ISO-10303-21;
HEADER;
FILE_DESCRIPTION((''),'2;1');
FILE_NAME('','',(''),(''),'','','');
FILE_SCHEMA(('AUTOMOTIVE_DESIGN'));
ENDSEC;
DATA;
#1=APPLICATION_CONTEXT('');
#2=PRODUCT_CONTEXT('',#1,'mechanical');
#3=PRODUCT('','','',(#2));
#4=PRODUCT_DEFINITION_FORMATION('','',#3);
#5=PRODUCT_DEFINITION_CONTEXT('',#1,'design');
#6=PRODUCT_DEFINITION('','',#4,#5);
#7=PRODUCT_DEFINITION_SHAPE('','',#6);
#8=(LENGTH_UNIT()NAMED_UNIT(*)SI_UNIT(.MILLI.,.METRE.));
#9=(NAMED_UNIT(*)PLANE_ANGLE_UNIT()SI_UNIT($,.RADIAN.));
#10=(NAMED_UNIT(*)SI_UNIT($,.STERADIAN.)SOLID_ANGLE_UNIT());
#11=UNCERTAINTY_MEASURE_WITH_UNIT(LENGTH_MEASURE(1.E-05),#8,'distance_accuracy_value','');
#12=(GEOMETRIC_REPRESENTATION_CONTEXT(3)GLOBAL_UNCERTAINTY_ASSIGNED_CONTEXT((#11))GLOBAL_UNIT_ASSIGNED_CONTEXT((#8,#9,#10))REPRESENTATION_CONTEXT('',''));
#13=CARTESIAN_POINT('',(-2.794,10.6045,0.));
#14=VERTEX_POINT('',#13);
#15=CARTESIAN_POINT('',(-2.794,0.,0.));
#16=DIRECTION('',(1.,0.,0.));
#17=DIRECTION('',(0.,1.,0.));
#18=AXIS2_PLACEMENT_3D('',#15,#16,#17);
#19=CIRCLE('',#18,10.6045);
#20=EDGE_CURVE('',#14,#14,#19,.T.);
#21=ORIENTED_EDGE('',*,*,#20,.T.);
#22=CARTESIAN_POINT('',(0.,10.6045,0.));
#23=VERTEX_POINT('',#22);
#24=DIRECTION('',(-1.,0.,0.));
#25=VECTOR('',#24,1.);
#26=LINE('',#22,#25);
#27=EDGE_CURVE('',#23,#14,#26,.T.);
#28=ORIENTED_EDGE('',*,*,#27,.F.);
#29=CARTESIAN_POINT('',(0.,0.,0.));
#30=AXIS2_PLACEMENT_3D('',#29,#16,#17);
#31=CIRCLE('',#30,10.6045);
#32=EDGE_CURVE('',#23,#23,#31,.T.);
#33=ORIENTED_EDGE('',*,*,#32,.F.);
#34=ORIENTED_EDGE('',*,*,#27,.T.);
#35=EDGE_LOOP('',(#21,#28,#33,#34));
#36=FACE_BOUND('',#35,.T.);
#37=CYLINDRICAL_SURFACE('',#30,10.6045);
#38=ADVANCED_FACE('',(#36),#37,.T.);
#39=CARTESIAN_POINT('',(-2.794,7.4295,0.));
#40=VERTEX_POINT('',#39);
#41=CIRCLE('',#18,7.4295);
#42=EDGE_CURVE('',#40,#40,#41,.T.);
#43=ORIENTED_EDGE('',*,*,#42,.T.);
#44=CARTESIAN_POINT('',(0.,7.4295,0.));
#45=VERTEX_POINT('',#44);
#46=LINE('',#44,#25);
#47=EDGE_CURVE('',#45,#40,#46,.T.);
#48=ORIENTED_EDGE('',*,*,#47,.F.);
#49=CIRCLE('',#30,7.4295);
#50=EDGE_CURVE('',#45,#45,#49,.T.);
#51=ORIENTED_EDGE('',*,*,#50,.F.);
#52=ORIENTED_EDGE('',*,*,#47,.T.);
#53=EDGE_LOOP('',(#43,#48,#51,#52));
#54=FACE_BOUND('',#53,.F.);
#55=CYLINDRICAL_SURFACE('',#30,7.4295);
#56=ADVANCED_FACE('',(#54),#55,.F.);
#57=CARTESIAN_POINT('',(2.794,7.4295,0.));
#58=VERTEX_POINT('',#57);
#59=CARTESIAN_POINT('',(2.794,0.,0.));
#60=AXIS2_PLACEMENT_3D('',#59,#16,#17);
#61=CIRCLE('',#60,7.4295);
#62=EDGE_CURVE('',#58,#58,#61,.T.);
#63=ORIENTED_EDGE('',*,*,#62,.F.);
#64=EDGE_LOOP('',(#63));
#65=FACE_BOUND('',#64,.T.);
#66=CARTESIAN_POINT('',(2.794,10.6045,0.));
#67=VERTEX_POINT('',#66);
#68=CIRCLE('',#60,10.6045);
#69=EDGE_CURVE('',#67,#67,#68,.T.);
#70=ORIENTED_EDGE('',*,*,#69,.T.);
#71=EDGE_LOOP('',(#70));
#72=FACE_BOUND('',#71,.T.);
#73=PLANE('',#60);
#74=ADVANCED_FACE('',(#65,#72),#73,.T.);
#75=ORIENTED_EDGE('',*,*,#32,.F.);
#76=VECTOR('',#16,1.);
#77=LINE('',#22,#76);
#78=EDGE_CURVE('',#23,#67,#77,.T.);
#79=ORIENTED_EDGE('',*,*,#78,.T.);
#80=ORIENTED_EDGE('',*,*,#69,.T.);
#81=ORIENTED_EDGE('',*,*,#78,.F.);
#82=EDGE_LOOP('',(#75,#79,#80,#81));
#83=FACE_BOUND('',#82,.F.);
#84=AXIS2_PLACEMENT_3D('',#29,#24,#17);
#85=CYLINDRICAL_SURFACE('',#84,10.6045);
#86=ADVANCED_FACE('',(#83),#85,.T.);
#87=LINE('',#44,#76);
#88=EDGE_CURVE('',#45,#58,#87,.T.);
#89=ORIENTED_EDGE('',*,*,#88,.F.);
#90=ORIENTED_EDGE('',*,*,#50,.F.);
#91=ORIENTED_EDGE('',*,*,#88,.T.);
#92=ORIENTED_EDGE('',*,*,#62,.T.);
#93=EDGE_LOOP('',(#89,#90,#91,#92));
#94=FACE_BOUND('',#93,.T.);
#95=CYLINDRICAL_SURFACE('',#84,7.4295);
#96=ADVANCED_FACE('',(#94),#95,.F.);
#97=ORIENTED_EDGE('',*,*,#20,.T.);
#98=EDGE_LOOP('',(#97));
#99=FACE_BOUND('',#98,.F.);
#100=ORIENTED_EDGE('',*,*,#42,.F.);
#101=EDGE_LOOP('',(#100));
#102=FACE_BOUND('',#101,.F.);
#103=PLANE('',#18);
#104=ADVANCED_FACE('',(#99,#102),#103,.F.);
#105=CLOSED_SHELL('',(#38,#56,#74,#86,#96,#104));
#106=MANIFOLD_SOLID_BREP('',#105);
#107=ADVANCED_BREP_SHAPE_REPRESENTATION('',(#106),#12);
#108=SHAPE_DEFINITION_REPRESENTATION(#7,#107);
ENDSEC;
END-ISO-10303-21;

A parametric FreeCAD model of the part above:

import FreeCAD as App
import Part
import Sketcher
Q = App.Units.Quantity

doc = App.newDocument("Part")
body = doc.addObject("PartDesign::Body", "Body")

# Sketch on YZ plane
sketch1 = doc.addObject("Sketcher::SketchObject", "Sketch")
body.addObject(sketch1)
sketch1.AttachmentSupport = (doc.YZ_Plane, [""])
sketch1.MapMode = "FlatFace"
sketch1.addGeometry([
    Part.Circle(App.Vector(0, 0, 0), App.Vector(0, 0, 1), 11),
    Part.Circle(App.Vector(0, 0, 0), App.Vector(0, 0, 1), 7),
], False)
sketch1.addConstraint([
    Sketcher.Constraint("Coincident", 0, 3, -1, 1),
    Sketcher.Constraint("Coincident", 1, 3, -1, 1),
    Sketcher.Constraint("Diameter", 1, Q("0.585 in")),
    Sketcher.Constraint("Diameter", 0, Q("0.835 in")),
])
pad1 = doc.addObject("PartDesign::Pad", "Pad")
body.addObject(pad1)
pad1.Profile = sketch1
pad1.Length = Q("0.22 in")
pad1.Midplane = True

doc.recompute()
